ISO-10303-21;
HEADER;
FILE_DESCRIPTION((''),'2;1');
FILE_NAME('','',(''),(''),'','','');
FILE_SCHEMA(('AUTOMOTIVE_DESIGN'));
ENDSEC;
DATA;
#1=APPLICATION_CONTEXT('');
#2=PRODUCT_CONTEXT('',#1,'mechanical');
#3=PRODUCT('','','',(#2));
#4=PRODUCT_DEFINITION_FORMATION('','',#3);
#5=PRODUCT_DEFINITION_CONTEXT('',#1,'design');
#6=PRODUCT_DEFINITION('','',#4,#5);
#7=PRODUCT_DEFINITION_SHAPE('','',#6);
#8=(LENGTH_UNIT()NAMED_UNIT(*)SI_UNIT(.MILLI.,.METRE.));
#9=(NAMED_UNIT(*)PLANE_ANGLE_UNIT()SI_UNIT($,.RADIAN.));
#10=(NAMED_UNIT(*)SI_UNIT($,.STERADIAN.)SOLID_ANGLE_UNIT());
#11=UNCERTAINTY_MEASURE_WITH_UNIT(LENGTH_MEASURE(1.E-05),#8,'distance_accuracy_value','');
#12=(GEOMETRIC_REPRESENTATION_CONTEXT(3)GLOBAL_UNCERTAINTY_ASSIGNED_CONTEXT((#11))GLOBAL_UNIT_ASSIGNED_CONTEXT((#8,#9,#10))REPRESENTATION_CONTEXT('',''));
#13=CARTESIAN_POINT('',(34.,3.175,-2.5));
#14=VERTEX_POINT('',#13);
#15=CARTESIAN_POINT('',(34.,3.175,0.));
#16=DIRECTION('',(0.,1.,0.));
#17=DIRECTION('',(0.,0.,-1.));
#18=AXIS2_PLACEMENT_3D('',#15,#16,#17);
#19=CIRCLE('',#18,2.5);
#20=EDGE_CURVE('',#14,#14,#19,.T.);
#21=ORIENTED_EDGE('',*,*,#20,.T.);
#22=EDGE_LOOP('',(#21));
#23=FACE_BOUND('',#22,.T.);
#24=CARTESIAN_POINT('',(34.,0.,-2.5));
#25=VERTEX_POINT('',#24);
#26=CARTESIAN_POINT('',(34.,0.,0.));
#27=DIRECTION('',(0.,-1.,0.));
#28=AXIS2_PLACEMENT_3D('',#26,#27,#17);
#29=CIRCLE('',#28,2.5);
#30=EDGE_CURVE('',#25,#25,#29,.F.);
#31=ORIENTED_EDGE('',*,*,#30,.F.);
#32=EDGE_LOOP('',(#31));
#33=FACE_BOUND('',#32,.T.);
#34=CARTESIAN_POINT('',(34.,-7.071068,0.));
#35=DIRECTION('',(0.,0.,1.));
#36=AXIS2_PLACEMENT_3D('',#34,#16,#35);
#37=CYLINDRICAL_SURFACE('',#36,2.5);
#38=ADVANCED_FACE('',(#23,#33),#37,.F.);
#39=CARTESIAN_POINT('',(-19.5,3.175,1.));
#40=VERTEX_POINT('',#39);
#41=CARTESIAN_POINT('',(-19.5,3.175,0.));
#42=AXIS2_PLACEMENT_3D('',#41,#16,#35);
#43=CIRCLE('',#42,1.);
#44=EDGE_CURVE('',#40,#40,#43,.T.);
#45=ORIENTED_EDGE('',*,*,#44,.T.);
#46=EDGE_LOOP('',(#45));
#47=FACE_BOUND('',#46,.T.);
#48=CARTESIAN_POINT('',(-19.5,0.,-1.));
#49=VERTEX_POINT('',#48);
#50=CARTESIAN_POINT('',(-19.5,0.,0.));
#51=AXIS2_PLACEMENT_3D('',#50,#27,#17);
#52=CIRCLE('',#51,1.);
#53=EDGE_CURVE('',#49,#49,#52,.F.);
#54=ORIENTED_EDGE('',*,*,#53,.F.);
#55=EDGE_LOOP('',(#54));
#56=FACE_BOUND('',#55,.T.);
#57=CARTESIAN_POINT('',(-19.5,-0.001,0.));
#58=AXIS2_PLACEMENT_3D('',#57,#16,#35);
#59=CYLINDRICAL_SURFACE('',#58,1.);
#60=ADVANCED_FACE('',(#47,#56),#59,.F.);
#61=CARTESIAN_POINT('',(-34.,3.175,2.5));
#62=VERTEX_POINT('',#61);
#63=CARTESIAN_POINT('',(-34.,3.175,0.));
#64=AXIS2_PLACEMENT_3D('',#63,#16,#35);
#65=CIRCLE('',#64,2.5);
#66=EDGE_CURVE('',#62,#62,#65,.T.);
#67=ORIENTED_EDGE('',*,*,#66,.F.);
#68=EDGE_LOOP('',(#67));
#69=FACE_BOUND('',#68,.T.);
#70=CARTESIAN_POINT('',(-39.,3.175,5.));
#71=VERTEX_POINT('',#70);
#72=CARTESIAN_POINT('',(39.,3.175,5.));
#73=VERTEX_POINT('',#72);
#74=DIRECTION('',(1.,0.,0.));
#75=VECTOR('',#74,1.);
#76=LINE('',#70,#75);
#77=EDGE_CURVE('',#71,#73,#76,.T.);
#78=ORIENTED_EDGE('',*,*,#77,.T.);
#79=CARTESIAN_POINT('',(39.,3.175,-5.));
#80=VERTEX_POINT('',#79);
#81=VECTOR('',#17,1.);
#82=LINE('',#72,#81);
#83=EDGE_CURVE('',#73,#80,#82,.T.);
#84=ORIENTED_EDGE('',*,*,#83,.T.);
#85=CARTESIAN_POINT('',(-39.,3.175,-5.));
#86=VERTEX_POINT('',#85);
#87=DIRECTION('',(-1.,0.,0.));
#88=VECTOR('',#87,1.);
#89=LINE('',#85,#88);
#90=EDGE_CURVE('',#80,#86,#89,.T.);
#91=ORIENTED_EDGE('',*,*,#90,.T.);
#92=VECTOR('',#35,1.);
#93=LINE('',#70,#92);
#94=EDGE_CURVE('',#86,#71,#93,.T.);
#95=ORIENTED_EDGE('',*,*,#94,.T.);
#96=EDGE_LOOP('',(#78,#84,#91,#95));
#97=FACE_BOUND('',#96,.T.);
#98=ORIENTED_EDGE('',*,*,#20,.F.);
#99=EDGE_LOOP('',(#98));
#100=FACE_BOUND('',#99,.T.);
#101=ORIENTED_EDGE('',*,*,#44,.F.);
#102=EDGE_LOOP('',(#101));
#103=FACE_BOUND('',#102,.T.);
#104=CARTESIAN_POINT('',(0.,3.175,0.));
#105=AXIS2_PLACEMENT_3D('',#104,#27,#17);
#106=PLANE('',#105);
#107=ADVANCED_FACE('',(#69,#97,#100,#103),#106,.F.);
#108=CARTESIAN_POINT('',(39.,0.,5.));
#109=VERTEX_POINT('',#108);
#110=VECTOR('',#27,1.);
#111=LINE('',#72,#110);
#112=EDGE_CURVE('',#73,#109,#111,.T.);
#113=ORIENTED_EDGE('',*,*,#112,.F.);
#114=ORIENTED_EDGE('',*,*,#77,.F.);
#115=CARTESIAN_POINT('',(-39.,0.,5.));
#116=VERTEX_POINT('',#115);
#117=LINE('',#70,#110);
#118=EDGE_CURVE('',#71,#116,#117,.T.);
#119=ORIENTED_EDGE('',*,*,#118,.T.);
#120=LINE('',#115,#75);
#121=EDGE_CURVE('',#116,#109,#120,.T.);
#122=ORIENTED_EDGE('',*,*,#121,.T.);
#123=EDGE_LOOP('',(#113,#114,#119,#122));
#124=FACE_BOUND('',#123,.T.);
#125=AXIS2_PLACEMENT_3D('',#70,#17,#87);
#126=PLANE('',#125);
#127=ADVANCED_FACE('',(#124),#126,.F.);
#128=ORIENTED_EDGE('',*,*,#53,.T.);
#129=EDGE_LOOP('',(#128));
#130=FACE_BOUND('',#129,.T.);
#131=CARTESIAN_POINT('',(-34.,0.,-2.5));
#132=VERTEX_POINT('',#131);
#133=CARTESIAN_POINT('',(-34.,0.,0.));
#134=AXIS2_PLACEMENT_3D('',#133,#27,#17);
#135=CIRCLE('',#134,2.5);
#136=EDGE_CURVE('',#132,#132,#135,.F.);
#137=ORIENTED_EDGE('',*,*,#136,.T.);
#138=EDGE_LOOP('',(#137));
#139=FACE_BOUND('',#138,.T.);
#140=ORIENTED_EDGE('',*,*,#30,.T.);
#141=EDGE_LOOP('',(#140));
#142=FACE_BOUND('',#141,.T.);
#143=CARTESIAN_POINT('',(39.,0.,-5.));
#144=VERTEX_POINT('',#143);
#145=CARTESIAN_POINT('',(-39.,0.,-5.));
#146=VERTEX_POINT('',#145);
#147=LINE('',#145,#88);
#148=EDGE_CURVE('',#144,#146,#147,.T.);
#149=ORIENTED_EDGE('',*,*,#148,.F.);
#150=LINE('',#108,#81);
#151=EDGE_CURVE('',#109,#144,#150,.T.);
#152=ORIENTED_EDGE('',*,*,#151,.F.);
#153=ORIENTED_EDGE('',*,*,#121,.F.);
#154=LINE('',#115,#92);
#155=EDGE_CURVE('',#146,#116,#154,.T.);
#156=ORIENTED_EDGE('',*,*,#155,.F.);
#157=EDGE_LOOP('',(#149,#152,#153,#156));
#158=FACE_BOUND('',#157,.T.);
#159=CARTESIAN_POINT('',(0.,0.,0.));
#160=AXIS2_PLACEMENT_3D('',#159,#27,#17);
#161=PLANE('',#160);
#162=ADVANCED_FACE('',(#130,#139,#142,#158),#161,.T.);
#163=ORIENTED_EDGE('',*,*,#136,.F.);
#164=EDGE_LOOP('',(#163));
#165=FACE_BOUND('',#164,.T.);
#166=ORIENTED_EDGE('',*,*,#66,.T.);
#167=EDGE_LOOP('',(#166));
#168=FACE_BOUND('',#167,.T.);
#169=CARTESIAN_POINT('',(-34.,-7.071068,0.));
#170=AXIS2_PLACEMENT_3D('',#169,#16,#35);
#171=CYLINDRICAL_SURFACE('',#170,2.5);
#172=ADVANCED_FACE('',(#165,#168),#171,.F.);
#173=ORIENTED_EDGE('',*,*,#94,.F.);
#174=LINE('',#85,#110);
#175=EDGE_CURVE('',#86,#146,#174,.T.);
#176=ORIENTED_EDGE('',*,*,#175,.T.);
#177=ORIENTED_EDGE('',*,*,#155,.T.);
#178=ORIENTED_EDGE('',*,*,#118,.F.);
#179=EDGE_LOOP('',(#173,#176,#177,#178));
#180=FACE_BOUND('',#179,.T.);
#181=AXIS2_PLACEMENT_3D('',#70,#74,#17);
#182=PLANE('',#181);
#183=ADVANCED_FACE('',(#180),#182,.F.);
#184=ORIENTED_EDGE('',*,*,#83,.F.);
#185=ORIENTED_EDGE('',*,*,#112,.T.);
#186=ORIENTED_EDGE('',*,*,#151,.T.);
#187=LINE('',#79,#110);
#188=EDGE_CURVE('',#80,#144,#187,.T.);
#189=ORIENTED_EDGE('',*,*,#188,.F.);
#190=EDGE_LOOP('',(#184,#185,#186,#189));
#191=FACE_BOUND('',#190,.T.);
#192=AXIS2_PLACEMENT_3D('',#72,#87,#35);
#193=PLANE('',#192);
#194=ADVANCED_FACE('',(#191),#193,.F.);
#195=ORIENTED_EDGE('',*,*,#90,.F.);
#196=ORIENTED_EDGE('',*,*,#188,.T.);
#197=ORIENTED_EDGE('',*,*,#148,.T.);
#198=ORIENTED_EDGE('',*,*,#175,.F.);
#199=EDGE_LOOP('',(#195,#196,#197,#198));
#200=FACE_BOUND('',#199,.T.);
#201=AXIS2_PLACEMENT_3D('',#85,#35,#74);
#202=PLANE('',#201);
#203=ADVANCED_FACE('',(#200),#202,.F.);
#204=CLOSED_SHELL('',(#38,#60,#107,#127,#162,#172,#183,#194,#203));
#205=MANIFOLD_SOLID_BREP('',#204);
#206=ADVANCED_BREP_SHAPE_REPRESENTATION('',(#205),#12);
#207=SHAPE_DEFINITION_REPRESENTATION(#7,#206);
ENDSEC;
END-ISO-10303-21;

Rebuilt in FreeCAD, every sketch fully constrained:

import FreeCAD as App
import Part
import Sketcher
from FreeCAD import Vector
Q = App.Units.Quantity


def add_polygon(sketch, points):
    """Adds a closed chain of lines whose ends are joined by coincident constraints."""
    first, n = sketch.GeometryCount, len(points)
    for a, b in zip(points, points[1:] + points[:1]):
        sketch.addGeometry(Part.LineSegment(App.Vector(*a, 0), App.Vector(*b, 0)), False)
    for i in range(n):
        sketch.addConstraint(Sketcher.Constraint("Coincident", first + i, 2, first + (i + 1) % n, 1))

doc = App.newDocument("Part")
body = doc.addObject("PartDesign::Body", "Body")

# Sketch on XZ plane
sketch1 = doc.addObject("Sketcher::SketchObject", "Sketch")
body.addObject(sketch1)
sketch1.AttachmentSupport = (doc.XZ_Plane, [""])
sketch1.MapMode = "FlatFace"
add_polygon(sketch1, [(-39, -5), (-39, 5), (39, 5), (39, -5)])  # lines 0-3
sketch1.addConstraint([
    Sketcher.Constraint("Vertical", 0),
    Sketcher.Constraint("Horizontal", 1),
    Sketcher.Constraint("Vertical", 2),
    Sketcher.Constraint("Horizontal", 3),
    Sketcher.Constraint("Symmetric", 0, 2, 2, 2, -1, 1),
    Sketcher.Constraint("DistanceX", 1, 1, 1, 2, Q("78 mm")),
    Sketcher.Constraint("DistanceY", 0, 1, 0, 2, Q("10 mm")),
])
pad1 = doc.addObject("PartDesign::Pad", "Pad")
body.addObject(pad1)
pad1.Profile = sketch1
pad1.Length = 3.175
pad1.Reversed = True

# Sketch on XZ plane
sketch2 = doc.addObject("Sketcher::SketchObject", "Sketch001")
body.addObject(sketch2)
sketch2.AttachmentSupport = (doc.XZ_Plane, [""])
sketch2.MapMode = "FlatFace"
sketch2.AttachmentOffset = App.Placement(Vector(0, 0, -3.175), App.Rotation())
sketch2.addGeometry([
    Part.Circle(Vector(-34, 0, 0), Vector(0, 0, 1), 2.5),
    Part.Circle(Vector(34, 0, 0), Vector(0, 0, 1), 2.5),
], False)
sketch2.addConstraint([
    Sketcher.Constraint("Equal", 0, 1),
    Sketcher.Constraint("Symmetric", 0, 3, 1, 3, -1, 1),
    Sketcher.Constraint("PointOnObject", 0, 3, -1),
    Sketcher.Constraint("Diameter", 0, Q("5 mm")),
    Sketcher.Constraint("DistanceX", 0, 3, -1, 1, Q("34 mm")),
])
pocket1 = doc.addObject("PartDesign::Pocket", "Pocket")
body.addObject(pocket1)
pocket1.Profile = sketch2
pocket1.Length = 3.175
pocket1.Reversed = True

# Sketch on XZ plane
sketch3 = doc.addObject("Sketcher::SketchObject", "Sketch002")
body.addObject(sketch3)
sketch3.AttachmentSupport = (doc.XZ_Plane, [""])
sketch3.MapMode = "FlatFace"
sketch3.AttachmentOffset = App.Placement(Vector(0, 0, -3.175), App.Rotation())
sketch3.addGeometry(Part.Circle(Vector(-19.5, 0, 0), Vector(0, 0, 1), 1), False)
sketch3.addConstraint([
    Sketcher.Constraint("PointOnObject", 0, 3, -1),
    Sketcher.Constraint("Diameter", 0, Q("2 mm")),
    Sketcher.Constraint("DistanceX", 0, 3, -1, 1, Q("19.5 mm")),
])
pocket2 = doc.addObject("PartDesign::Pocket", "Pocket001")
body.addObject(pocket2)
pocket2.Profile = sketch3
pocket2.Type = "UpToFirst"
pocket2.Reversed = True

doc.recompute()
